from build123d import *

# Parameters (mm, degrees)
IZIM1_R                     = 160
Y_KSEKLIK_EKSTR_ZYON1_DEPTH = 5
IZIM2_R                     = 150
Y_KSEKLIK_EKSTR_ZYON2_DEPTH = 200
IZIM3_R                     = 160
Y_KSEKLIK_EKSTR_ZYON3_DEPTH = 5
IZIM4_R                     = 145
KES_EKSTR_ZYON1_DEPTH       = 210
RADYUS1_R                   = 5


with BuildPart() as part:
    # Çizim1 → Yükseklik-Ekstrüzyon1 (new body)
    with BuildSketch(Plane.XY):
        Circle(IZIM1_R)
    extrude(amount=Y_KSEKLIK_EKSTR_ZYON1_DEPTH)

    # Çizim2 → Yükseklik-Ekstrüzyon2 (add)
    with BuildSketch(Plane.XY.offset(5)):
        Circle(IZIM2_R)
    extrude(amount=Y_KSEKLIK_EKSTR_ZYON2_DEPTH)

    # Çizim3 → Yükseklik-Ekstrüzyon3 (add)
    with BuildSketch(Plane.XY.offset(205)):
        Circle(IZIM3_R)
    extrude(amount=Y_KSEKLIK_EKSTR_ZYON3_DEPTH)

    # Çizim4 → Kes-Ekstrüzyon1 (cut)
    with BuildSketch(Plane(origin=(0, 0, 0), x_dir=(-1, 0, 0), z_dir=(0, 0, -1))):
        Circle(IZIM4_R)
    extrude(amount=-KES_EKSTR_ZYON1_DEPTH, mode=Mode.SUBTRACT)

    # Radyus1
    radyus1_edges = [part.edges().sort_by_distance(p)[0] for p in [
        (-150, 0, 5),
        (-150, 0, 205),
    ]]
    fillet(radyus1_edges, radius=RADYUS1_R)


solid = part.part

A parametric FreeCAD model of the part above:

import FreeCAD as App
import Part
import Sketcher

V = App.Vector
Q = App.Units.Quantity


def edges_at(feature, points):
    """Names of the edges that pass closest to the given points."""
    edges = feature.Shape.Edges
    near = lambda p: min(range(len(edges)), key=lambda i: edges[i].distToShape(Part.Vertex(*p))[0])
    return sorted({f"Edge{near(p) + 1}" for p in points})

doc = App.newDocument("Part")
body = doc.addObject("PartDesign::Body", "Body")

# Sketch on XY plane
sketch1 = doc.addObject("Sketcher::SketchObject", "Sketch")
body.addObject(sketch1)
sketch1.AttachmentSupport = (doc.XY_Plane, [""])
sketch1.MapMode = "FlatFace"
sketch1.addGeometry(Part.Circle(V(0, 0, 0), V(0, 0, 1), 160), False)
sketch1.addConstraint(Sketcher.Constraint("Coincident", 0, 3, -1, 1))
sketch1.addConstraint(Sketcher.Constraint("Diameter", 0, Q("320 mm")))
pad1 = doc.addObject("PartDesign::Pad", "Pad")
body.addObject(pad1)
pad1.Profile = sketch1
pad1.Length = 5

# Sketch on XY plane
sketch2 = doc.addObject("Sketcher::SketchObject", "Sketch001")
body.addObject(sketch2)
sketch2.AttachmentSupport = (doc.XY_Plane, [""])
sketch2.MapMode = "FlatFace"
sketch2.AttachmentOffset = App.Placement(V(0, 0, 5), App.Rotation())
sketch2.addGeometry(Part.Circle(V(0, 0, 0), V(0, 0, 1), 150), False)
sketch2.addConstraint(Sketcher.Constraint("Coincident", 0, 3, -1, 1))
sketch2.addConstraint(Sketcher.Constraint("Diameter", 0, Q("300 mm")))
pad2 = doc.addObject("PartDesign::Pad", "Pad001")
body.addObject(pad2)
pad2.Profile = sketch2
pad2.Length = 200

# Sketch on XY plane
sketch3 = doc.addObject("Sketcher::SketchObject", "Sketch002")
body.addObject(sketch3)
sketch3.AttachmentSupport = (doc.XY_Plane, [""])
sketch3.MapMode = "FlatFace"
sketch3.AttachmentOffset = App.Placement(V(0, 0, 205), App.Rotation())
sketch3.addGeometry(Part.Circle(V(0, 0, 0), V(0, 0, 1), 160), False)
sketch3.addConstraint(Sketcher.Constraint("Coincident", 0, 3, -1, 1))
sketch3.addConstraint(Sketcher.Constraint("Diameter", 0, Q("320 mm")))
pad3 = doc.addObject("PartDesign::Pad", "Pad002")
body.addObject(pad3)
pad3.Profile = sketch3
pad3.Length = 5

# Sketch on XY plane
sketch4 = doc.addObject("Sketcher::SketchObject", "Sketch003")
body.addObject(sketch4)
sketch4.AttachmentSupport = (doc.XY_Plane, [""])
sketch4.MapMode = "FlatFace"
sketch4.addGeometry(Part.Circle(V(0, 0, 0), V(0, 0, 1), 145), False)
sketch4.addConstraint(Sketcher.Constraint("Coincident", 0, 3, -1, 1))
sketch4.addConstraint(Sketcher.Constraint("Diameter", 0, Q("290 mm")))
pocket1 = doc.addObject("PartDesign::Pocket", "Pocket")
body.addObject(pocket1)
pocket1.Profile = sketch4
pocket1.Length = 210
pocket1.Reversed = True
doc.recompute()

fillet = doc.addObject("PartDesign::Fillet", "Fillet")
body.addObject(fillet)
fillet.Base = (pocket1, edges_at(pocket1, [(-150, 0, 5), (-150, 0, 205)]))
fillet.Radius = 5

doc.recompute()
